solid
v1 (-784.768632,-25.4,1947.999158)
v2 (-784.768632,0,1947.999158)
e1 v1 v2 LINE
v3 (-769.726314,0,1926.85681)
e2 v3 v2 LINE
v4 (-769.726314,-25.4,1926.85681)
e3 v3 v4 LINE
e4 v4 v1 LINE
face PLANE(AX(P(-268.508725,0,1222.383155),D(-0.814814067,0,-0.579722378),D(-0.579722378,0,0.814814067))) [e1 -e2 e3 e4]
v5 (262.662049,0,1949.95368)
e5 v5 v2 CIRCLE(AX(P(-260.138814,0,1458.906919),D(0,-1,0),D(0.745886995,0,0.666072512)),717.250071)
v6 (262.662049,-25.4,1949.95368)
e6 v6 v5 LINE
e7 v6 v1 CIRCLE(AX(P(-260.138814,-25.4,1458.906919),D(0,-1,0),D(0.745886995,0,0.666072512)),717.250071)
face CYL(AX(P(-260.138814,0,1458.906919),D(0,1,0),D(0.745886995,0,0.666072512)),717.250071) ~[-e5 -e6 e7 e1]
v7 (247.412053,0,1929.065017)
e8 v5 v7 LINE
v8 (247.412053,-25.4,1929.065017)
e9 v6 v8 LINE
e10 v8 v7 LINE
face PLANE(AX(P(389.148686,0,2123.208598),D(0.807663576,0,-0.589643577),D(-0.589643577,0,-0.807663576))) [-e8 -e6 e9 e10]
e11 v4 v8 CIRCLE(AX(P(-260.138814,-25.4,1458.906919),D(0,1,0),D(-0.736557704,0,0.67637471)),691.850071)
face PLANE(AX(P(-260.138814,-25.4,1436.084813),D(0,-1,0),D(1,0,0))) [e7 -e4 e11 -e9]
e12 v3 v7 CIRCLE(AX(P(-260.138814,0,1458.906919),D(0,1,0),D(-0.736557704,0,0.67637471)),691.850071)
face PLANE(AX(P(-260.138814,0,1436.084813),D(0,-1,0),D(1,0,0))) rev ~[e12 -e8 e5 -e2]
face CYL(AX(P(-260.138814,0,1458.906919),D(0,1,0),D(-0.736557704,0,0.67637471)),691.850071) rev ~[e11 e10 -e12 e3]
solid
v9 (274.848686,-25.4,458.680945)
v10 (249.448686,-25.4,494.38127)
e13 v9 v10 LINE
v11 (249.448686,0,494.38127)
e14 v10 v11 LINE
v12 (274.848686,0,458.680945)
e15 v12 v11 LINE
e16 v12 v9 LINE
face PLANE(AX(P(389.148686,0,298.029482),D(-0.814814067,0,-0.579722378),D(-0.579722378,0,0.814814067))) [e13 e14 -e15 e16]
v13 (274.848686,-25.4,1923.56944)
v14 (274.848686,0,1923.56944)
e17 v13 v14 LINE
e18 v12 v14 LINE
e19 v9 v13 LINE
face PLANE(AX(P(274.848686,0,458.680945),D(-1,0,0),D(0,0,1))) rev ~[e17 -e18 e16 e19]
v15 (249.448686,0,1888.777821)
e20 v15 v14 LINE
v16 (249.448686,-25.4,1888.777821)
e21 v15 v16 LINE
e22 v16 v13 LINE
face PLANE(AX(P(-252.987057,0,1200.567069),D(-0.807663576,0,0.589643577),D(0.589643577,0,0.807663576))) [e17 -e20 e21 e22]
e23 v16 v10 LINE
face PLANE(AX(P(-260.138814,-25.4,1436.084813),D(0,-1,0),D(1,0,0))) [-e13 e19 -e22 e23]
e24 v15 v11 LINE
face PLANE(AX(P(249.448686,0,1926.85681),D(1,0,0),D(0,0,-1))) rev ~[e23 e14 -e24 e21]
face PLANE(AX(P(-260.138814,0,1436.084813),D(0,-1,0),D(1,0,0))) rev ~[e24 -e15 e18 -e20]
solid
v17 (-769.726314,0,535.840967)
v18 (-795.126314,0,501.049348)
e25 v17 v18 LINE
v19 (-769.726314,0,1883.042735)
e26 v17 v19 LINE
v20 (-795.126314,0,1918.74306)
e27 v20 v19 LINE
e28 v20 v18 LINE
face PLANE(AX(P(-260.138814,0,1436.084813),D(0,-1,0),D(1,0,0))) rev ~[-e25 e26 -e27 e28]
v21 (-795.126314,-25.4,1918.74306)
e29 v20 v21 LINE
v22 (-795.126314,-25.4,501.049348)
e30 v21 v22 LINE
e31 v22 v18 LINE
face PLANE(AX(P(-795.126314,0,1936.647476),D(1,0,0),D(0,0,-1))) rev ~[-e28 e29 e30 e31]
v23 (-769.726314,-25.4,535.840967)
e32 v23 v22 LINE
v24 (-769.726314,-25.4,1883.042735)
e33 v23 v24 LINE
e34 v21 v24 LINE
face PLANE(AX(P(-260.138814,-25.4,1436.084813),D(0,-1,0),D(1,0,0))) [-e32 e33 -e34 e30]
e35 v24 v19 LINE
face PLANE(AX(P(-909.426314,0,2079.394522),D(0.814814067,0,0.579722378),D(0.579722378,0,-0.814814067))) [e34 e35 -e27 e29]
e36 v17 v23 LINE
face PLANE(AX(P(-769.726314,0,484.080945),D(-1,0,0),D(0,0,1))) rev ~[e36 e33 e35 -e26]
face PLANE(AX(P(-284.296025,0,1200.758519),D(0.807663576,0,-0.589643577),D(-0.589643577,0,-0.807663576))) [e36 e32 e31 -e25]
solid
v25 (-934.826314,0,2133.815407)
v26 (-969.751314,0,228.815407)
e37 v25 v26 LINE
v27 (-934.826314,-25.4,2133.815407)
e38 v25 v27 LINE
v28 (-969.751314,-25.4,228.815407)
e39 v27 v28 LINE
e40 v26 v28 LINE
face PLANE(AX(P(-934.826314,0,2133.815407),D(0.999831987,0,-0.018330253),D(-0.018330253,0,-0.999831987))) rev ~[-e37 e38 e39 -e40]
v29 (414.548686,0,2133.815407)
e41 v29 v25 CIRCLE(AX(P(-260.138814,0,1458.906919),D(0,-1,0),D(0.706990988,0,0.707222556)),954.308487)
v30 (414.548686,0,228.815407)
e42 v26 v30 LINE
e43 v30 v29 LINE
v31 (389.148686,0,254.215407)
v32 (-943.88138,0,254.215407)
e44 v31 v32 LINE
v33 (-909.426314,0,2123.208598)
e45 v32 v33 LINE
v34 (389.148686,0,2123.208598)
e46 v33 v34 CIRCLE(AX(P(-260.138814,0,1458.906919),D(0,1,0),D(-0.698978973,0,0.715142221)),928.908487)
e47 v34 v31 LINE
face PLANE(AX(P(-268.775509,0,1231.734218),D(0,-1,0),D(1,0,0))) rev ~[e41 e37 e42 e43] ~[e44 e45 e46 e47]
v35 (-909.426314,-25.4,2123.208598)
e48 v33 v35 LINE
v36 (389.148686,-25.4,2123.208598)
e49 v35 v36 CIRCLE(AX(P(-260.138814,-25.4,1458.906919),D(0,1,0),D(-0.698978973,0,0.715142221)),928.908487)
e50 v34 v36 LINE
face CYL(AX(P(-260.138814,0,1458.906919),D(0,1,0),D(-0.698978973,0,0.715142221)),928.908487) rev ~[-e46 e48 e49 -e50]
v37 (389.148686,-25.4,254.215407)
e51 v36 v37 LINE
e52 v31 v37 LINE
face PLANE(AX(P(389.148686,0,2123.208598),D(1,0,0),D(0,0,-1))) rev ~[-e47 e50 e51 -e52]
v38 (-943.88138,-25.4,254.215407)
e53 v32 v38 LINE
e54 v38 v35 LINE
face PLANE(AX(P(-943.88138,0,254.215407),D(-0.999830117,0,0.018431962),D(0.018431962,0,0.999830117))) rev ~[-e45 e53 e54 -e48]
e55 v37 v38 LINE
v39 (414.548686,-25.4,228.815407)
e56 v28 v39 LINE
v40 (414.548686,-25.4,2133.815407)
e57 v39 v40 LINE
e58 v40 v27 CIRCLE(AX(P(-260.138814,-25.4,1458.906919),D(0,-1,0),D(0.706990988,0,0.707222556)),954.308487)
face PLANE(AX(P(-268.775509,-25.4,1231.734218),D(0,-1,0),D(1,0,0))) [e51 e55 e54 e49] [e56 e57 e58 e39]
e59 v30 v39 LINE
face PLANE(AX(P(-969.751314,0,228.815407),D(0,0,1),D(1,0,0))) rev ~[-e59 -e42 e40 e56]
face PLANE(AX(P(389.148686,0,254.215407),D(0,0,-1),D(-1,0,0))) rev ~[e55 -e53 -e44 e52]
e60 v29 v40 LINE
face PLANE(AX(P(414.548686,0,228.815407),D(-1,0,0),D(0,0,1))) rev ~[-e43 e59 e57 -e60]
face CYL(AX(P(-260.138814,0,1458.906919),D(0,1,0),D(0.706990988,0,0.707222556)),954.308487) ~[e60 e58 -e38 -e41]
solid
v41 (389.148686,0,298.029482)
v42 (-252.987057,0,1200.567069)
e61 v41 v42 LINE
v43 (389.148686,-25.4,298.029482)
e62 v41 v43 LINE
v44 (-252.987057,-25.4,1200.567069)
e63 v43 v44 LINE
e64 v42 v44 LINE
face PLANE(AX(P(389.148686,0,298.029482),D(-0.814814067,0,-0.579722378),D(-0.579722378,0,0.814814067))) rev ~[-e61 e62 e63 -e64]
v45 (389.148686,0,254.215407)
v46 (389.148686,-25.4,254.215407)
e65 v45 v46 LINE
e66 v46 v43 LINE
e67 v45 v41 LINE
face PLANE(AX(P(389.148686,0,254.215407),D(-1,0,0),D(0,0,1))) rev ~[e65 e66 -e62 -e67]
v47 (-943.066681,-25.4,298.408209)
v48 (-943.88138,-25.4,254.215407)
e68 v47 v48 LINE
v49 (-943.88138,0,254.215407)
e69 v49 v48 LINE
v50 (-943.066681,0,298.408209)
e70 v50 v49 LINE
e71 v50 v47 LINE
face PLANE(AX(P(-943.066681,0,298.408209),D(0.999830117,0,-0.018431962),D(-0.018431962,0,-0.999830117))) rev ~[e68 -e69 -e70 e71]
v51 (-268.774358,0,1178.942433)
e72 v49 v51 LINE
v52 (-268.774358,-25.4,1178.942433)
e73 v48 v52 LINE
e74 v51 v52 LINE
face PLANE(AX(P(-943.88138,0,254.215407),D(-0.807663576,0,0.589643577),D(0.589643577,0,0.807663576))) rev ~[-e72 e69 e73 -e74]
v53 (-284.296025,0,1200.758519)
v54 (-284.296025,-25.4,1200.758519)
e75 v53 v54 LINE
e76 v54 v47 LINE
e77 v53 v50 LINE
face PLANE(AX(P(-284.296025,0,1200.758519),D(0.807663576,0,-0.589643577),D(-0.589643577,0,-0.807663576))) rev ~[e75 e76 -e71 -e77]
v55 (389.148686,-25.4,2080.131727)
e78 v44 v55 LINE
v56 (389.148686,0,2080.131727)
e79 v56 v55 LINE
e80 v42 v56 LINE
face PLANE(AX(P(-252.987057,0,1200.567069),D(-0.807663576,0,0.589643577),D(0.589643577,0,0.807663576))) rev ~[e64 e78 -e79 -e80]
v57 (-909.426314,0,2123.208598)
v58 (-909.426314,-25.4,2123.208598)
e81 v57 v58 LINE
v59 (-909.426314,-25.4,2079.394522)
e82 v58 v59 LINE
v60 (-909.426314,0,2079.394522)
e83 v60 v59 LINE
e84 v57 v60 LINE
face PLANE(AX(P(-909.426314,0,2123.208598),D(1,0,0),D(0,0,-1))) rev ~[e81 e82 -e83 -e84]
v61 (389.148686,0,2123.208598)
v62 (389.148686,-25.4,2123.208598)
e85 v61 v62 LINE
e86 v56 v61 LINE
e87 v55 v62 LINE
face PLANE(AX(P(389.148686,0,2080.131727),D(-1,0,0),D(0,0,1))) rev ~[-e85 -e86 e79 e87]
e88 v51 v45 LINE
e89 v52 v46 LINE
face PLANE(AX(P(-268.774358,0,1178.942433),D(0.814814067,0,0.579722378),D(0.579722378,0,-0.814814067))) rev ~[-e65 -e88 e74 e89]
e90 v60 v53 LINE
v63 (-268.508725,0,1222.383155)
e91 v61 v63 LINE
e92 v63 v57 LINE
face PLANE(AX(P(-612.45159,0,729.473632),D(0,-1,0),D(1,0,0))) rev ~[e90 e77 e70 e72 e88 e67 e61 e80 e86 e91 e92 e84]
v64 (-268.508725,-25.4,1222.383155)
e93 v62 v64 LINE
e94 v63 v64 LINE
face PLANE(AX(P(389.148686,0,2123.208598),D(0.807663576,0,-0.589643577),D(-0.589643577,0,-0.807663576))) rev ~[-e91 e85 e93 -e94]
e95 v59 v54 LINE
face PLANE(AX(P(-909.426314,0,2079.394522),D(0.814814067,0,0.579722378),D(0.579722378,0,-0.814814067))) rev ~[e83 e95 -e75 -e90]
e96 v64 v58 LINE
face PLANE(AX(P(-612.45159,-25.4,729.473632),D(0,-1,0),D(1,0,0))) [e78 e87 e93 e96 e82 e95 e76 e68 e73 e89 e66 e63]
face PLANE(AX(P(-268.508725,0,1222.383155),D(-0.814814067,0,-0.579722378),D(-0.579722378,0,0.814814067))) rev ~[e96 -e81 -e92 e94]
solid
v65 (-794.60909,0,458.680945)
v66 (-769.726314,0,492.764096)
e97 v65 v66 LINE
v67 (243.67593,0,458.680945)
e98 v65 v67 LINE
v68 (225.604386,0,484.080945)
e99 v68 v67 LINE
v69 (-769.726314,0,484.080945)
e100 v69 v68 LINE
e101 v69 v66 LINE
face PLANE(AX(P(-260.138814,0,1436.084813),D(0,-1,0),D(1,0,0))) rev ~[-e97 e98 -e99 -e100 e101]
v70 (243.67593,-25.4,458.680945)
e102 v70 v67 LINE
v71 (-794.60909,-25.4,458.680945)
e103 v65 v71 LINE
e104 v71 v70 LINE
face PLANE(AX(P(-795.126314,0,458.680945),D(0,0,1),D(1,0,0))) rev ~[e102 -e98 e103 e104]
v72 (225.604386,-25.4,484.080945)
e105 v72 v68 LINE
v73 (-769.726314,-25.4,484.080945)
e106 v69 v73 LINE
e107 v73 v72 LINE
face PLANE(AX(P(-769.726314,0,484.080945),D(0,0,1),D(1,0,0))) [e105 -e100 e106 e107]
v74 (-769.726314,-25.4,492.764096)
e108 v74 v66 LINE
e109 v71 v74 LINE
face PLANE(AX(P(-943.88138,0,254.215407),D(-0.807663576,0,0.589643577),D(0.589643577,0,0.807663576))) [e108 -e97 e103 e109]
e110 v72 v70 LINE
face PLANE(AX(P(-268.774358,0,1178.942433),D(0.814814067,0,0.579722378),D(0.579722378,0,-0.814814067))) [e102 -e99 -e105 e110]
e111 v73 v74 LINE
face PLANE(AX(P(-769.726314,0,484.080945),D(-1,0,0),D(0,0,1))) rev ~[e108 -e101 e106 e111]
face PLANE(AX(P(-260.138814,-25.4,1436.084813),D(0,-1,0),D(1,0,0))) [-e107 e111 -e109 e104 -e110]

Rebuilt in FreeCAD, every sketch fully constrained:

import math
import FreeCAD as App
import Part
import Sketcher
Q = App.Units.Quantity

doc = App.newDocument("Part")
body = doc.addObject("PartDesign::Body", "Body")

# Sketch on XZ plane
sketch1 = doc.addObject("Sketcher::SketchObject", "Sketch")
body.addObject(sketch1)
sketch1.AttachmentSupport = (doc.XZ_Plane, [""])
sketch1.MapMode = "FlatFace"
sketch1.addGeometry([
    Part.LineSegment(App.Vector(-969.751314, 228.815407, 0), App.Vector(414.548686, 228.815407, 0)),  # 0
    Part.LineSegment(App.Vector(414.548686, 228.815407, 0), App.Vector(414.548686, 2133.815407, 0)),  # 1
    Part.ArcOfCircle(Part.Circle(App.Vector(-260.138814, 1458.906919, 0), App.Vector(0, 0, 1), 954.308487), math.radians(45.009382), math.radians(134.990618)),  # 2
    Part.LineSegment(App.Vector(-934.826314, 2133.815407, 0), App.Vector(-969.751314, 228.815407, 0)),  # 3
    Part.LineSegment(App.Vector(389.148686, 2123.208598, 0), App.Vector(389.148686, 254.215407, 0)),  # 4
    Part.LineSegment(App.Vector(389.148686, 254.215407, 0), App.Vector(-943.88138, 254.215407, 0)),  # 5
    Part.LineSegment(App.Vector(-943.88138, 254.215407, 0), App.Vector(-909.426314, 2123.208598, 0)),  # 6
    Part.ArcOfCircle(Part.Circle(App.Vector(-260.138814, 1458.906919, 0), App.Vector(0, 0, 1), 928.908487), math.radians(45.654856), math.radians(134.345144)),  # 7
], False)
sketch1.addConstraint([
    Sketcher.Constraint("Coincident", 0, 2, 1, 1),
    Sketcher.Constraint("Coincident", 1, 2, 2, 1),
    Sketcher.Constraint("Coincident", 2, 2, 3, 1),
    Sketcher.Constraint("Coincident", 3, 2, 0, 1),
    Sketcher.Constraint("Coincident", 4, 2, 5, 1),
    Sketcher.Constraint("Coincident", 5, 2, 6, 1),
    Sketcher.Constraint("Coincident", 6, 2, 7, 2),
    Sketcher.Constraint("Coincident", 7, 1, 4, 1),
    Sketcher.Constraint("Horizontal", 0),
    Sketcher.Constraint("Vertical", 1),
    Sketcher.Constraint("Vertical", 4),
    Sketcher.Constraint("Horizontal", 5),
    Sketcher.Constraint("Coincident", 7, 3, 2, 3),
    Sketcher.Constraint("DistanceY", 1, 1, 1, 2, Q("75 in")),
    Sketcher.Constraint("DistanceX", 0, 1, 0, 2, Q("54.5 in")),
    Sketcher.Constraint("DistanceX", 4, 2, 0, 2, Q("1 in")),
    Sketcher.Constraint("DistanceY", 0, 2, 4, 2, Q("1 in")),
    Sketcher.Constraint("DistanceX", 2, 3, 0, 2, Q("26.5625 in")),
    Sketcher.Constraint("DistanceX", 6, 2, 2, 3, Q("25.5625 in")),
    Sketcher.Constraint("Radius", 2, 954.308487),
    Sketcher.Constraint("Radius", 7, 928.908487),
    Sketcher.Constraint("Distance", 3, 1905.320119),
    Sketcher.Constraint("DistanceX", 5, 2, 5, 1, 1333.030065),
    Sketcher.Constraint("DistanceY", -1, 1, 2, 3, 1458.906919),
    Sketcher.Constraint("DistanceX", 5, 2, -1, 1, 943.88138),
])
pad1 = doc.addObject("PartDesign::Pad", "Pad")
body.addObject(pad1)
pad1.Profile = sketch1
pad1.Length = Q("1 in")
body2 = doc.addObject("PartDesign::Body", "Body001")

# Sketch on XZ plane
sketch2 = doc.addObject("Sketcher::SketchObject", "Sketch001")
body2.addObject(sketch2)
sketch2.AttachmentSupport = (doc.getObject("XZ_Plane001"), [""])
sketch2.MapMode = "FlatFace"
sketch2.addGeometry([
    Part.LineSegment(App.Vector(-795.126314, 1936.647476, 0), App.Vector(-795.126314, 458.680945, 0)),  # 0
    Part.LineSegment(App.Vector(-795.126314, 458.680945, 0), App.Vector(274.848686, 458.680945, 0)),  # 1
    Part.LineSegment(App.Vector(274.848686, 458.680945, 0), App.Vector(274.848686, 1936.647476, 0)),  # 2
    Part.ArcOfCircle(Part.Circle(App.Vector(-260.138814, 1458.906919, 0), App.Vector(0, 0, 1), 717.250071), math.radians(41.764658), math.radians(138.235342)),  # 3
    Part.LineSegment(App.Vector(-769.726314, 484.080944, 0), App.Vector(-769.726314, 1926.85681, 0)),  # 4
    Part.ArcOfCircle(Part.Circle(App.Vector(-260.138814, 1458.906919, 0), App.Vector(0, 0, 1), 691.850071), math.radians(42.560996), math.radians(137.439004)),  # 5
    Part.LineSegment(App.Vector(249.448686, 1926.85681, 0), App.Vector(249.448686, 484.080944, 0)),  # 6
    Part.LineSegment(App.Vector(249.448686, 484.080944, 0), App.Vector(-769.726314, 484.080944, 0)),  # 7
], False)
sketch2.addConstraint([
    Sketcher.Constraint("Coincident", 0, 2, 1, 1),
    Sketcher.Constraint("Coincident", 1, 2, 2, 1),
    Sketcher.Constraint("Coincident", 2, 2, 3, 1),
    Sketcher.Constraint("Coincident", 3, 2, 0, 1),
    Sketcher.Constraint("Coincident", 4, 2, 5, 2),
    Sketcher.Constraint("Coincident", 5, 1, 6, 1),
    Sketcher.Constraint("Coincident", 6, 2, 7, 1),
    Sketcher.Constraint("Coincident", 7, 2, 4, 1),
    Sketcher.Constraint("Vertical", 0),
    Sketcher.Constraint("Horizontal", 1),
    Sketcher.Constraint("Vertical", 2),
    Sketcher.Constraint("Vertical", 4),
    Sketcher.Constraint("Vertical", 6),
    Sketcher.Constraint("Horizontal", 7),
    Sketcher.Constraint("Coincident", 5, 3, 3, 3),
    Sketcher.Constraint("Equal", 0, 2),
    Sketcher.Constraint("Equal", 4, 6),
    Sketcher.Constraint("DistanceX", 0, 2, 4, 2, Q("1 in")),
    Sketcher.Constraint("DistanceY", 1, 2, 6, 2, Q("1 in")),
    Sketcher.Constraint("DistanceX", 1, 1, 1, 2, Q("42.125 in")),
    Sketcher.Constraint("Radius", 3, 717.250071),
    Sketcher.Constraint("Radius", 5, 691.850071),
    Sketcher.Constraint("DistanceY", 0, 2, 0, 1, 1477.966531),
    Sketcher.Constraint("DistanceY", -1, 1, 3, 3, 1458.906919),
    Sketcher.Constraint("DistanceX", 3, 3, -1, 1, 260.138814),
])
pad2 = doc.addObject("PartDesign::Pad", "Pad001")
body2.addObject(pad2)
pad2.Profile = sketch2
pad2.Length = Q("1 in")
body3 = doc.addObject("PartDesign::Body", "Body002")

# Sketch on XZ plane
sketch3 = doc.addObject("Sketcher::SketchObject", "Sketch002")
body3.addObject(sketch3)
sketch3.AttachmentSupport = (doc.getObject("XZ_Plane002"), [""])
sketch3.MapMode = "FlatFace"
sketch3.addGeometry([
    Part.LineSegment(App.Vector(-943.066681, 298.408209, 0), App.Vector(-943.88138, 254.215407, 0)),  # 0
    Part.LineSegment(App.Vector(-943.88138, 254.215407, 0), App.Vector(-268.774358, 1178.942433, 0)),  # 1
    Part.LineSegment(App.Vector(-268.774358, 1178.942433, 0), App.Vector(389.148686, 254.215407, 0)),  # 2
    Part.LineSegment(App.Vector(389.148686, 254.215407, 0), App.Vector(389.148686, 298.029482, 0)),  # 3
    Part.LineSegment(App.Vector(389.148686, 298.029482, 0), App.Vector(-252.987057, 1200.567069, 0)),  # 4
    Part.LineSegment(App.Vector(-252.987057, 1200.567069, 0), App.Vector(389.148686, 2080.131727, 0)),  # 5
    Part.LineSegment(App.Vector(389.148686, 2080.131727, 0), App.Vector(389.148686, 2123.208598, 0)),  # 6
    Part.LineSegment(App.Vector(389.148686, 2123.208598, 0), App.Vector(-268.508725, 1222.383155, 0)),  # 7
    Part.LineSegment(App.Vector(-268.508725, 1222.383155, 0), App.Vector(-909.426314, 2123.208598, 0)),  # 8
    Part.LineSegment(App.Vector(-909.426314, 2123.208598, 0), App.Vector(-909.426314, 2079.394522, 0)),  # 9
    Part.LineSegment(App.Vector(-909.426314, 2079.394522, 0), App.Vector(-284.296025, 1200.758519, 0)),  # 10
    Part.LineSegment(App.Vector(-284.296025, 1200.758519, 0), App.Vector(-943.066681, 298.408209, 0)),  # 11
], False)
sketch3.addConstraint([
    Sketcher.Constraint("Coincident", 0, 2, 1, 1),
    Sketcher.Constraint("Coincident", 1, 2, 2, 1),
    Sketcher.Constraint("Coincident", 2, 2, 3, 1),
    Sketcher.Constraint("Coincident", 3, 2, 4, 1),
    Sketcher.Constraint("Coincident", 4, 2, 5, 1),
    Sketcher.Constraint("Coincident", 5, 2, 6, 1),
    Sketcher.Constraint("Coincident", 6, 2, 7, 1),
    Sketcher.Constraint("Coincident", 7, 2, 8, 1),
    Sketcher.Constraint("Coincident", 8, 2, 9, 1),
    Sketcher.Constraint("Coincident", 9, 2, 10, 1),
    Sketcher.Constraint("Coincident", 10, 2, 11, 1),
    Sketcher.Constraint("Coincident", 11, 2, 0, 1),
    Sketcher.Constraint("Vertical", 3),
    Sketcher.Constraint("Vertical", 6),
    Sketcher.Constraint("Vertical", 9),
    Sketcher.Constraint("Parallel", 2, 4),
    Sketcher.Constraint("Parallel", 1, 5),
    Sketcher.Constraint("Parallel", 5, 7),
    Sketcher.Constraint("Parallel", 4, 8),
    Sketcher.Constraint("Parallel", 8, 10),
    Sketcher.Constraint("Parallel", 7, 11),
    Sketcher.Constraint("Horizontal", 0, 2, 2, 2),
    Sketcher.Constraint("Horizontal", 6, 2, 8, 2),
    Sketcher.Constraint("Vertical", 3, 2, 5, 2),
    Sketcher.Constraint("Equal", 3, 9),
    Sketcher.Constraint("DistanceX", 8, 2, 6, 2, Q("51.125 in")),
    Sketcher.Constraint("DistanceX", 11, 2, 7, 2, Q("26.5573999 in")),
    Sketcher.Constraint("Distance", 2, 1134.893301),
    Sketcher.Constraint("DistanceY", 6, 1, 6, 2, 43.076871),
    Sketcher.Constraint("DistanceX", 1, 2, 4, 2, 15.787301),
    Sketcher.Constraint("DistanceX", 10, 2, 7, 2, 15.787301),
    Sketcher.Constraint("DistanceX", 0, 2, 11, 2, 0.814698),
    Sketcher.Constraint("DistanceY", 3, 1, 3, 2, 43.814075),
    Sketcher.Constraint("DistanceX", 0, 2, -1, 1, 943.88138),
    Sketcher.Constraint("DistanceX", 1, 2, -1, 1, 268.774358),
    Sketcher.Constraint("DistanceY", -1, 1, 3, 2, 298.029482),
])
pad3 = doc.addObject("PartDesign::Pad", "Pad002")
body3.addObject(pad3)
pad3.Profile = sketch3
pad3.Length = Q("1 in")
body2.AllowCompound = True
doc.recompute()

body4 = doc.addObject("PartDesign::Body", "Body003")
body4.BaseFeature = body3
boolean = doc.addObject("PartDesign::Boolean", "Boolean")
body2.addObject(boolean)
boolean.Type = "Cut"
boolean.addObjects([body4])
doc.recompute()

doc.recompute()
